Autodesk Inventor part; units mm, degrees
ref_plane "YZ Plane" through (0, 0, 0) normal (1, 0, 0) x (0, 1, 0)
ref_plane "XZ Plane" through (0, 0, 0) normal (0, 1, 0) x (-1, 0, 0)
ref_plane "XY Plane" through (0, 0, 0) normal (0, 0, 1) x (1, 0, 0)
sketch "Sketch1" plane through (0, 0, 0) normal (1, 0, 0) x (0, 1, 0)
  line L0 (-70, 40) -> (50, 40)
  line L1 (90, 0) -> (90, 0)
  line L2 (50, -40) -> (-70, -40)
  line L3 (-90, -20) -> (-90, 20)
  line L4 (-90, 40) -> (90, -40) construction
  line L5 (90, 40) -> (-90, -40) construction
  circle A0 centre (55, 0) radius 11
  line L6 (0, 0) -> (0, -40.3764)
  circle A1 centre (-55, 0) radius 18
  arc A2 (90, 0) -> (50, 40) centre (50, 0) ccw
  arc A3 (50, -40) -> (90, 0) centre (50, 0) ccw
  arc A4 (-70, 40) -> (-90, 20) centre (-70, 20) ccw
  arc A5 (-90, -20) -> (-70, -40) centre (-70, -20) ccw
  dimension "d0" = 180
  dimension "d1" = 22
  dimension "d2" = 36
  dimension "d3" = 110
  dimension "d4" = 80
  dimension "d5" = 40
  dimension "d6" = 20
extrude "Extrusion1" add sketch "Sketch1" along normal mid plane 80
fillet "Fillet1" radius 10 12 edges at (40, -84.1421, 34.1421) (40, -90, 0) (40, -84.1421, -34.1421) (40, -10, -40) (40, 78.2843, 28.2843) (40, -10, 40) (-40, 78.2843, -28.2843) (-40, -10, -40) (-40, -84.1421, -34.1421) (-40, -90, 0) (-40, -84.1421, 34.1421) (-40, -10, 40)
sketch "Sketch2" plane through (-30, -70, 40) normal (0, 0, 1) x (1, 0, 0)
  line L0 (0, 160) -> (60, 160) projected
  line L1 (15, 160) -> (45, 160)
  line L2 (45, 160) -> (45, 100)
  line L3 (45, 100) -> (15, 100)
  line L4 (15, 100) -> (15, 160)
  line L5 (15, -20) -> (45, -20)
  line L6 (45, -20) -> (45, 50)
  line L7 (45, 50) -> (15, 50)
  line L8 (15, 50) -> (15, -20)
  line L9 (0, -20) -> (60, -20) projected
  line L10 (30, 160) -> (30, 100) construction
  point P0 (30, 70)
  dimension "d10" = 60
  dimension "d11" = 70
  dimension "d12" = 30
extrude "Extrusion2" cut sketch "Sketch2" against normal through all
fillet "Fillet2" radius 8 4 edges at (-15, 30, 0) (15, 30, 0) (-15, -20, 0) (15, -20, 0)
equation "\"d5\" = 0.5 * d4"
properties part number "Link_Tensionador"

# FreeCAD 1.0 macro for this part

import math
import FreeCAD as App
import Part
import Sketcher
from FreeCAD import Vector
Q = App.Units.Quantity


def edges_at(feature, points):
    """Names of the edges that pass closest to the given points."""
    edges = feature.Shape.Edges
    near = lambda p: min(range(len(edges)), key=lambda i: edges[i].distToShape(Part.Vertex(*p))[0])
    return sorted({f"Edge{near(p) + 1}" for p in points})


def add_polygon(sketch, points):
    """Adds a closed chain of lines whose ends are joined by coincident constraints."""
    first, n = sketch.GeometryCount, len(points)
    for a, b in zip(points, points[1:] + points[:1]):
        sketch.addGeometry(Part.LineSegment(App.Vector(*a, 0), App.Vector(*b, 0)), False)
    for i in range(n):
        sketch.addConstraint(Sketcher.Constraint("Coincident", first + i, 2, first + (i + 1) % n, 1))

doc = App.newDocument("Part")
params = doc.addObject("Spreadsheet::Sheet", "Params")
for row, (alias, value) in enumerate([
    ("sketch1_diameter", "36 mm"),
    ("sketch1_diameter2", "22 mm"),
    ("sketch1_radius", "20 mm"),
    ("sketch1_radius2", "40 mm"),
    ("sketch1_width", "120 mm"),
    ("pad1_length", "80 mm"),
    ("fillet_radius", "10 mm"),
    ("sketch2_width", "30 mm"),
    ("sketch2_height", "60 mm"),
    ("sketch2_height2", "70 mm"),
    ("fillet2_radius", "8 mm"),
], start=1):
    params.set(f"A{row}", alias)
    params.set(f"B{row}", "=" + value)
    params.setAlias(f"B{row}", alias)

body = doc.addObject("PartDesign::Body", "Body")

# Sketch on YZ plane
sketch1 = doc.addObject("Sketcher::SketchObject", "Sketch")
body.addObject(sketch1)
sketch1.AttachmentSupport = (doc.YZ_Plane, [""])
sketch1.MapMode = "FlatFace"
sketch1.addGeometry([
    Part.LineSegment(Vector(50, 40, 0), Vector(-70, 40, 0)),  # 0
    Part.ArcOfCircle(Part.Circle(Vector(-70, 20, 0), Vector(0, 0, 1), 20), math.radians(90), math.radians(180)),  # 1
    Part.LineSegment(Vector(-90, 20, 0), Vector(-90, -20, 0)),  # 2
    Part.ArcOfCircle(Part.Circle(Vector(-70, -20, 0), Vector(0, 0, 1), 20), math.radians(180), math.radians(270)),  # 3
    Part.LineSegment(Vector(-70, -40, 0), Vector(50, -40, 0)),  # 4
    Part.ArcOfCircle(Part.Circle(Vector(50, 0, 0), Vector(0, 0, 1), 40), math.radians(-90), math.radians(90)),  # 5
    Part.Circle(Vector(-55, 0, 0), Vector(0, 0, 1), 18),  # 6
    Part.Circle(Vector(55, 0, 0), Vector(0, 0, 1), 11),  # 7
], False)
sketch1.addConstraint([
    Sketcher.Constraint("Tangent", 0, 2, 1, 1),
    Sketcher.Constraint("Tangent", 1, 2, 2, 1),
    Sketcher.Constraint("Tangent", 2, 2, 3, 1),
    Sketcher.Constraint("Tangent", 3, 2, 4, 1),
    Sketcher.Constraint("Tangent", 4, 2, 5, 1),
    Sketcher.Constraint("Tangent", 5, 2, 0, 1),
    Sketcher.Constraint("Horizontal", 0),
    Sketcher.Constraint("Vertical", 2),
    Sketcher.Constraint("Horizontal", 4),
    Sketcher.Constraint("Equal", 1, 3),
    Sketcher.Constraint("Symmetric", 6, 3, 7, 3, -1, 1),
    Sketcher.Constraint("PointOnObject", 5, 3, -1),
    Sketcher.Constraint("PointOnObject", 6, 3, -1),
    Sketcher.Constraint("Diameter", 6, Q("36 mm")),
    Sketcher.Constraint("Diameter", 7, Q("22 mm")),
    Sketcher.Constraint("Radius", 1, Q("20 mm")),
    Sketcher.Constraint("Radius", 5, Q("40 mm")),
    Sketcher.Constraint("DistanceX", 6, 3, 7, 3, Q("110 mm")),
    Sketcher.Constraint("DistanceX", 0, 2, 0, 1, Q("120 mm")),
    Sketcher.Constraint("DistanceX", 1, 3, -1, 1, Q("70 mm")),
])
sketch1.setExpression("Constraints[13]", "Params.sketch1_diameter")
sketch1.setExpression("Constraints[14]", "Params.sketch1_diameter2")
sketch1.setExpression("Constraints[15]", "Params.sketch1_radius")
sketch1.setExpression("Constraints[16]", "Params.sketch1_radius2")
sketch1.setExpression("Constraints[18]", "Params.sketch1_width")
pad1 = doc.addObject("PartDesign::Pad", "Pad")
body.addObject(pad1)
pad1.Profile = sketch1
pad1.setExpression("Length", "Params.pad1_length")
pad1.Midplane = True
doc.recompute()

fillet = doc.addObject("PartDesign::Fillet", "Fillet")
body.addObject(fillet)
fillet.Base = (pad1, edges_at(pad1, [
    (40, -84.142, 34.142),
    (40, -90, 0),
    (40, -84.142, -34.142),
    (40, -10, -40),
    (40, 78.284, 28.284),
    (40, -10, 40),
    (-40, 78.284, -28.284),
    (-40, -10, -40),
    (-40, -84.142, -34.142),
    (-40, -90, 0),
    (-40, -84.142, 34.142),
    (-40, -10, 40),
]))
fillet.setExpression("Radius", "Params.fillet_radius")

# Sketch on XY plane
sketch2 = doc.addObject("Sketcher::SketchObject", "Sketch001")
body.addObject(sketch2)
sketch2.AttachmentSupport = (doc.XY_Plane, [""])
sketch2.MapMode = "FlatFace"
sketch2.AttachmentOffset = App.Placement(Vector(0, 0, 40), App.Rotation())
add_polygon(sketch2, [(15, 90), (-15, 90), (-15, 30), (15, 30)])  # lines 0-3
add_polygon(sketch2, [(-15, -20), (-15, -90), (15, -90), (15, -20)])  # lines 4-7
sketch2.addConstraint([
    Sketcher.Constraint("Horizontal", 0),
    Sketcher.Constraint("Vertical", 1),
    Sketcher.Constraint("Horizontal", 2),
    Sketcher.Constraint("Vertical", 3),
    Sketcher.Constraint("Vertical", 4),
    Sketcher.Constraint("Horizontal", 5),
    Sketcher.Constraint("Vertical", 6),
    Sketcher.Constraint("Horizontal", 7),
    Sketcher.Constraint("Symmetric", 3, 2, 4, 2, -1, 1),
    Sketcher.Constraint("Vertical", 1, 2, 4, 2),
    Sketcher.Constraint("Vertical", 3, 2, 5, 2),
    Sketcher.Constraint("DistanceX", 0, 2, 0, 1, Q("30 mm")),
    Sketcher.Constraint("DistanceY", 1, 2, 1, 1, Q("60 mm")),
    Sketcher.Constraint("DistanceY", 4, 2, 4, 1, Q("70 mm")),
    Sketcher.Constraint("DistanceY", -1, 1, 1, 2, Q("30 mm")),
])
sketch2.setExpression("Constraints[19]", "Params.sketch2_width")
sketch2.setExpression("Constraints[20]", "Params.sketch2_height")
sketch2.setExpression("Constraints[21]", "Params.sketch2_height2")
pocket1 = doc.addObject("PartDesign::Pocket", "Pocket")
body.addObject(pocket1)
pocket1.Profile = sketch2
pocket1.Type = "ThroughAll"
doc.recompute()

fillet2 = doc.addObject("PartDesign::Fillet", "Fillet001")
body.addObject(fillet2)
fillet2.Base = (pocket1, edges_at(pocket1, [
    (-15, 30, 0),
    (15, 30, 0),
    (-15, -20, 0),
    (15, -20, 0),
]))
fillet2.setExpression("Radius", "Params.fillet2_radius")

doc.recompute()
